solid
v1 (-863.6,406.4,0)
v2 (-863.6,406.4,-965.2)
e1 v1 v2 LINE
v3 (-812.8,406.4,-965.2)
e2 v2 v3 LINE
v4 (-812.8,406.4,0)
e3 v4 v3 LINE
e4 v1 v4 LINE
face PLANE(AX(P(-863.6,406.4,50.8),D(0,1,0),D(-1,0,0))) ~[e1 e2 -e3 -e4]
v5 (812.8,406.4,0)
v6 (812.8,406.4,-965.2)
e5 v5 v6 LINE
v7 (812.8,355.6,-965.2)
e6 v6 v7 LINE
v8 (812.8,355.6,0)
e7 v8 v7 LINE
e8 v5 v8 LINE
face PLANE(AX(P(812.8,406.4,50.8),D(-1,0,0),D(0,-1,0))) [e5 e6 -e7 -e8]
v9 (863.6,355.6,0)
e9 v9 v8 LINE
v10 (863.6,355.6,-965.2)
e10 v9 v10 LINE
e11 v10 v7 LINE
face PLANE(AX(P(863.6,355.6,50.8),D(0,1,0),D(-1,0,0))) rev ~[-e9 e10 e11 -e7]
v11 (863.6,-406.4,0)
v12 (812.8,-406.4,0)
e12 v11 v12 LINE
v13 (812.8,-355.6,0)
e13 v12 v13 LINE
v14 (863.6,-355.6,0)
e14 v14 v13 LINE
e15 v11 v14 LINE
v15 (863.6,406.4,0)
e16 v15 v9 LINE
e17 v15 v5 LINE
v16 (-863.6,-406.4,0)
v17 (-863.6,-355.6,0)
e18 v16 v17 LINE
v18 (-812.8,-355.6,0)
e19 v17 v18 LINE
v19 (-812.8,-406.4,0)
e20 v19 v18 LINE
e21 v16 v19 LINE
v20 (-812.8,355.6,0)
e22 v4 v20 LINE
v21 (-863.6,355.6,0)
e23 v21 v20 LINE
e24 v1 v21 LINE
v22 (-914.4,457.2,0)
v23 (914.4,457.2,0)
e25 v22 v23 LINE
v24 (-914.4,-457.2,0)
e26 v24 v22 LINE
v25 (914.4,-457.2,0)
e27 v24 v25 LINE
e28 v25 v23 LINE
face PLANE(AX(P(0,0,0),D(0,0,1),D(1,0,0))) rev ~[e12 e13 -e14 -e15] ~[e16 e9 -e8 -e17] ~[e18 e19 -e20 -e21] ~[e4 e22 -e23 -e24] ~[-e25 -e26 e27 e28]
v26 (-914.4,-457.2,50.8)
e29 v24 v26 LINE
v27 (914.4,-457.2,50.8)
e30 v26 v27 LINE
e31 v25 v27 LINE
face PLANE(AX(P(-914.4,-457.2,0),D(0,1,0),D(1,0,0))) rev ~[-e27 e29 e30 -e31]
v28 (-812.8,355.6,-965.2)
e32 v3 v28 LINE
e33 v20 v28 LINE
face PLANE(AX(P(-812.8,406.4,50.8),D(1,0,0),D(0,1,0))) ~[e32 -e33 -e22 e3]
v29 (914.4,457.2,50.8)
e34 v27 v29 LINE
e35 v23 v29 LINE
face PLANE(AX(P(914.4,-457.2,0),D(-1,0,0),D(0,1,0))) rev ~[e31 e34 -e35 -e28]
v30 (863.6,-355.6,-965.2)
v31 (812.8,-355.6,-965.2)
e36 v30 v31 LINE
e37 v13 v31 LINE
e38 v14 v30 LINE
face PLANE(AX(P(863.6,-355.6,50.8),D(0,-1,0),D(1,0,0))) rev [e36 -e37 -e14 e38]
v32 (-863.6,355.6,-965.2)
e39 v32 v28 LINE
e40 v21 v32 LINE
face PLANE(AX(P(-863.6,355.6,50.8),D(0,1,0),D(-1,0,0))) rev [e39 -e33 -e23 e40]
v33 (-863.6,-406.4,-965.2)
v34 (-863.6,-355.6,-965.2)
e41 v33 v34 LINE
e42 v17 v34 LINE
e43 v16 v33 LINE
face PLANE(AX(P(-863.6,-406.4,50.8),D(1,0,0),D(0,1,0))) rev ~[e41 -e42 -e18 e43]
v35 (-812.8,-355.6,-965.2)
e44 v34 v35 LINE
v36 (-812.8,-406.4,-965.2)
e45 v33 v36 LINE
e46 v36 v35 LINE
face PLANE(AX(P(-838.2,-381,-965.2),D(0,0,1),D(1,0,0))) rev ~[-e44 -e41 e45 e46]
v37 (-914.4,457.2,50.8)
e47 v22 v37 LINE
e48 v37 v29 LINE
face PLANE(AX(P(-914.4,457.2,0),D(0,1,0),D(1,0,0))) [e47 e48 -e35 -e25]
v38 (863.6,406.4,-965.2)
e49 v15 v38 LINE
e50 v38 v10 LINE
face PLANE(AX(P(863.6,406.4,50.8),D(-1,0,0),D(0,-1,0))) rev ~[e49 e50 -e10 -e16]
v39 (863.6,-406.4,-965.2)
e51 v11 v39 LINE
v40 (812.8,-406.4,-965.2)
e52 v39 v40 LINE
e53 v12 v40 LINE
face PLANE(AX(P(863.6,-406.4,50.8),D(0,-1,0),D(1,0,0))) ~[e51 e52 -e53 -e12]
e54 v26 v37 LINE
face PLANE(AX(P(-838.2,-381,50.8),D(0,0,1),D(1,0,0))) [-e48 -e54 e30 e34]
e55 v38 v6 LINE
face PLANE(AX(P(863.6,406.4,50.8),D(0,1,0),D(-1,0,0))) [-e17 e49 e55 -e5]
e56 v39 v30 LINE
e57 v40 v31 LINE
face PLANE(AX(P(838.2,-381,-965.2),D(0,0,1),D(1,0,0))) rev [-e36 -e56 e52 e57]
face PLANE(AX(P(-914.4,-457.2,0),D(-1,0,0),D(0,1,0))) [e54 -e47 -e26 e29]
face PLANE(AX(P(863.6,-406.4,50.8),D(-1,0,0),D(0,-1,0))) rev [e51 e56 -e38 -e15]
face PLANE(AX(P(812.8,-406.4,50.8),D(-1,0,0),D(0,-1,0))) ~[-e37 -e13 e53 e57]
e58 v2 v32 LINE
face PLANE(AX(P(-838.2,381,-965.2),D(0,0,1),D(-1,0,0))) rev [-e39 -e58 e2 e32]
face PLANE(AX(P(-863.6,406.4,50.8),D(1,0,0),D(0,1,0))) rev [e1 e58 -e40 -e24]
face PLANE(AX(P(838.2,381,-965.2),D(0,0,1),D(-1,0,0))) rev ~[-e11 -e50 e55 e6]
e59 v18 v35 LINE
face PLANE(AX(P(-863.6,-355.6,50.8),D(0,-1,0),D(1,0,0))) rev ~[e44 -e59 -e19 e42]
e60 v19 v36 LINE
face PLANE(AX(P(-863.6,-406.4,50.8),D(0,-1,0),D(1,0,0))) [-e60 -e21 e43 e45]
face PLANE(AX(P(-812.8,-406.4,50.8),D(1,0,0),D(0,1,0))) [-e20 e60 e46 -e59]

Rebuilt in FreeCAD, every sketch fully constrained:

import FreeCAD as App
import Part
import Sketcher
from FreeCAD import Vector
Q = App.Units.Quantity


def add_polygon(sketch, points):
    """Adds a closed chain of lines whose ends are joined by coincident constraints."""
    first, n = sketch.GeometryCount, len(points)
    for a, b in zip(points, points[1:] + points[:1]):
        sketch.addGeometry(Part.LineSegment(App.Vector(*a, 0), App.Vector(*b, 0)), False)
    for i in range(n):
        sketch.addConstraint(Sketcher.Constraint("Coincident", first + i, 2, first + (i + 1) % n, 1))

doc = App.newDocument("Part")
body = doc.addObject("PartDesign::Body", "Body")

# Sketch on XY plane
sketch1 = body.newObject("Sketcher::SketchObject", "Sketch")
sketch1.AttachmentSupport = (doc.getObject("XY_Plane"), [""])
sketch1.MapMode = "FlatFace"
add_polygon(sketch1, [(-914, 457), (-914, -457), (914, -457), (914, 457)])  # lines 0-3
sketch1.addConstraint(Sketcher.Constraint("Vertical", 0))
sketch1.addConstraint(Sketcher.Constraint("Horizontal", 1))
sketch1.addConstraint(Sketcher.Constraint("Vertical", 2))
sketch1.addConstraint(Sketcher.Constraint("Horizontal", 3))
sketch1.addConstraint(Sketcher.Constraint("Symmetric", 0, 2, 2, 2, -1, 1))
sketch1.addConstraint(Sketcher.Constraint("DistanceX", 1, 1, 1, 2, Q("72 in")))
sketch1.addConstraint(Sketcher.Constraint("DistanceY", 0, 2, 0, 1, Q("36 in")))
pad1 = body.newObject("PartDesign::Pad", "Pad")
pad1.Profile = sketch1
pad1.Length = Q("2 in")

# Sketch on XY plane
sketch2 = body.newObject("Sketcher::SketchObject", "Sketch001")
sketch2.AttachmentSupport = (doc.getObject("XY_Plane"), [""])
sketch2.MapMode = "FlatFace"
sketch2.AttachmentOffset = App.Placement(Vector(0, 0, 2 * 25.4), App.Rotation())
add_polygon(sketch2, [(-864, -356), (-864, -406), (-813, -406), (-813, -356)])  # lines 0-3
sketch2.addConstraint(Sketcher.Constraint("Vertical", 0))
sketch2.addConstraint(Sketcher.Constraint("Horizontal", 1))
sketch2.addConstraint(Sketcher.Constraint("Vertical", 2))
sketch2.addConstraint(Sketcher.Constraint("Horizontal", 3))
sketch2.addConstraint(Sketcher.Constraint("Equal", 3, 0))
sketch2.addConstraint(Sketcher.Constraint("DistanceX", 1, 1, 1, 2, Q("2 in")))
sketch2.addConstraint(Sketcher.Constraint("DistanceX", 0, 2, -1, 1, Q("34 in")))
sketch2.addConstraint(Sketcher.Constraint("DistanceY", 0, 2, -1, 1, Q("16 in")))
pad2 = body.newObject("PartDesign::Pad", "Pad001")
pad2.Profile = sketch2
pad2.Length = Q("40 in")
pad2.Reversed = True
body2 = doc.addObject("PartDesign::Body", "Body001")
doc.recompute()

body2.BaseFeature = body
doc.recompute()

mirroring = doc.addObject("Part::Mirroring", "Mirroring")
mirroring.Source = body
mirroring.Base = Vector(0, 0, 0)
mirroring.Normal = Vector(0, -1, 0)
body3 = doc.addObject("PartDesign::Body", "Body002")
body3.BaseFeature = mirroring
boolean = body2.newObject("PartDesign::Boolean", "Boolean")
boolean.Type = "Fuse"
boolean.addObjects([body3])
doc.recompute()
body4 = doc.addObject("PartDesign::Body", "Body003")
doc.recompute()

body4.BaseFeature = body2
doc.recompute()

mirroring2 = doc.addObject("Part::Mirroring", "Mirroring001")
mirroring2.Source = body2
mirroring2.Base = Vector(0, 0, 0)
mirroring2.Normal = Vector(1, 0, 0)
body5 = doc.addObject("PartDesign::Body", "Body004")
body5.BaseFeature = mirroring2
boolean2 = body4.newObject("PartDesign::Boolean", "Boolean001")
boolean2.Type = "Fuse"
boolean2.addObjects([body5])
doc.recompute()
mirroring.Visibility = False
mirroring2.Visibility = False

doc.recompute()
